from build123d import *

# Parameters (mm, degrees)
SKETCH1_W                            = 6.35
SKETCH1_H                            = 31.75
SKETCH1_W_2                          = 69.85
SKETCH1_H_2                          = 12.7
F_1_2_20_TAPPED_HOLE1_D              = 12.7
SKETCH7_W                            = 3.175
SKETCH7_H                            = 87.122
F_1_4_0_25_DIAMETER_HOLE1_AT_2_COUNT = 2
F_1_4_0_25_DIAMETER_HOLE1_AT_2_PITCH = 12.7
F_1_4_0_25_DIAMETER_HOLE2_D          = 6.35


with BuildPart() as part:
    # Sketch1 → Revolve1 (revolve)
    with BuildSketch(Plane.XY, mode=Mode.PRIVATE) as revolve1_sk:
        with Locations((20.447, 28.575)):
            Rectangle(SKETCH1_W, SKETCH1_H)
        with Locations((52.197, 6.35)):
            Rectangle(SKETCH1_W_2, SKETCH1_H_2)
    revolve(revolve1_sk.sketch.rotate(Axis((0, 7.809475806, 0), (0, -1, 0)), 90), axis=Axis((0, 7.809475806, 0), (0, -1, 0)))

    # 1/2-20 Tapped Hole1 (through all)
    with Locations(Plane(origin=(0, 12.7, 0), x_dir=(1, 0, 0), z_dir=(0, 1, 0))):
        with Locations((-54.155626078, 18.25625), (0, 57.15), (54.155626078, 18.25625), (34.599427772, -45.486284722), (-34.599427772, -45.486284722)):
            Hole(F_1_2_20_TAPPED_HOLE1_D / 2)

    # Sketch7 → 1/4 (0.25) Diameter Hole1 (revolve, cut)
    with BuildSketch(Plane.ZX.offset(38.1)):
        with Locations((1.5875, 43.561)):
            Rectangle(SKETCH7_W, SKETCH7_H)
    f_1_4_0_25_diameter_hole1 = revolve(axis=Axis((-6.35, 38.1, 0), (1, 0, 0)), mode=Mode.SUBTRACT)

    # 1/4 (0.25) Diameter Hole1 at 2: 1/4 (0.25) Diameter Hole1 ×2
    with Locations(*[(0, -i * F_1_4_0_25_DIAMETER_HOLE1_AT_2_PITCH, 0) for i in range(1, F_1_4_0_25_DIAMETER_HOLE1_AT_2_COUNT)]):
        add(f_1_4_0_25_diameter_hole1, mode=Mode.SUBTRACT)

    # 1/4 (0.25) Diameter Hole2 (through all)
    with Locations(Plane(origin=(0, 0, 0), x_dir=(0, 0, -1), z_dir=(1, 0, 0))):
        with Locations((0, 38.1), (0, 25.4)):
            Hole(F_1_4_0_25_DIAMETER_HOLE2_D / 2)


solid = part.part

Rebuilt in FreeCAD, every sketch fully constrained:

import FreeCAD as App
import Part
import Sketcher
Q = App.Units.Quantity

doc = App.newDocument("Part")
params = doc.addObject("Spreadsheet::Sheet", "Params")
for row, (alias, value) in enumerate([
    ("sketch1_width", "2.5 in"),
    ("sketch1_height", "0.5 in"),
    ("sketch1_width2", "2.75 in"),
    ("sketch1_height2", "1.75 in"),
    ("revolution_angle", "360 deg"),
    ("sketch2_diameter", "0.5 in"),
    ("hole_diameter", "0.5 in"),
    ("sketch3_width", "3.43 in"),
    ("sketch3_height", "0.125 in"),
    ("groove_angle", "360 deg"),
    ("linearpattern_pitch", "0.5 in"),
    ("sketch4_diameter", "0.25 in"),
    ("hole2_diameter", "0.25 in"),
], start=1):
    params.set(f"A{row}", alias)
    params.set(f"B{row}", "=" + value)
    params.setAlias(f"B{row}", alias)

body = doc.addObject("PartDesign::Body", "Body")

sketch1 = body.newObject("Sketcher::SketchObject", "Sketch")
sketch1.AttachmentSupport = (doc.getObject("XY_Plane"), [""])
sketch1.MapMode = "FlatFace"
sketch1.addGeometry([
    Part.LineSegment(App.Vector(17, 44, 0), App.Vector(17, 0, 0)),
    Part.LineSegment(App.Vector(17, 0, 0), App.Vector(87, 0, 0)),
    Part.LineSegment(App.Vector(87, 0, 0), App.Vector(87, 13, 0)),
    Part.LineSegment(App.Vector(87, 13, 0), App.Vector(24, 13, 0)),
    Part.LineSegment(App.Vector(24, 13, 0), App.Vector(24, 44, 0)),
    Part.LineSegment(App.Vector(24, 44, 0), App.Vector(17, 44, 0)),
], False)
sketch1.addConstraint([
    Sketcher.Constraint("Coincident", 0, 2, 1, 1),
    Sketcher.Constraint("Coincident", 1, 2, 2, 1),
    Sketcher.Constraint("Coincident", 2, 2, 3, 1),
    Sketcher.Constraint("Coincident", 3, 2, 4, 1),
    Sketcher.Constraint("Coincident", 4, 2, 5, 1),
    Sketcher.Constraint("Coincident", 5, 2, 0, 1),
    Sketcher.Constraint("Vertical", 0),
    Sketcher.Constraint("Horizontal", 1),
    Sketcher.Constraint("Vertical", 2),
    Sketcher.Constraint("Horizontal", 3),
    Sketcher.Constraint("Vertical", 4),
    Sketcher.Constraint("Horizontal", 5),
    Sketcher.Constraint("PointOnObject", 0, 2, -1),
    Sketcher.Constraint("DistanceX", 3, 2, 3, 1, Q("2.5 in")),
    Sketcher.Constraint("DistanceY", 2, 1, 2, 2, Q("0.5 in")),
    Sketcher.Constraint("DistanceX", 1, 1, 1, 2, Q("2.75 in")),
    Sketcher.Constraint("DistanceY", 0, 2, 0, 1, Q("1.75 in")),
    Sketcher.Constraint("DistanceX", -1, 1, 0, 2, Q("0.68 in")),
])
sketch1.setExpression("Constraints[13]", "Params.sketch1_width")
sketch1.setExpression("Constraints[14]", "Params.sketch1_height")
sketch1.setExpression("Constraints[15]", "Params.sketch1_width2")
sketch1.setExpression("Constraints[16]", "Params.sketch1_height2")
revolution = body.newObject("PartDesign::Revolution", "Revolution")
revolution.Profile = sketch1
revolution.ReferenceAxis = (sketch1, ["V_Axis"])
revolution.setExpression("Angle", "Params.revolution_angle")

sketch2 = body.newObject("Sketcher::SketchObject", "Sketch001")
sketch2.AttachmentSupport = (doc.getObject("XZ_Plane"), [""])
sketch2.MapMode = "FlatFace"
sketch2.AttachmentOffset = App.Placement(App.Vector(0, 0, -0.5 * 25.4), App.Rotation())
sketch2.addGeometry([
    Part.Circle(App.Vector(-54, -18, 0), App.Vector(0, 0, 1), 6),
    Part.Circle(App.Vector(0, -57, 0), App.Vector(0, 0, 1), 6),
    Part.Circle(App.Vector(54, -18, 0), App.Vector(0, 0, 1), 6),
    Part.Circle(App.Vector(35, 45, 0), App.Vector(0, 0, 1), 6),
    Part.Circle(App.Vector(-35, 45, 0), App.Vector(0, 0, 1), 6),
], False)
sketch2.addConstraint([
    Sketcher.Constraint("Equal", 0, 1),
    Sketcher.Constraint("Equal", 1, 2),
    Sketcher.Constraint("Equal", 2, 3),
    Sketcher.Constraint("Equal", 3, 4),
    Sketcher.Constraint("Symmetric", 0, 3, 2, 3, -2),
    Sketcher.Constraint("Symmetric", 3, 3, 4, 3, -2),
    Sketcher.Constraint("PointOnObject", 1, 3, -2),
    Sketcher.Constraint("Diameter", 0, Q("0.5 in")),
    Sketcher.Constraint("DistanceY", 1, 3, -1, 1, Q("2.25 in")),
    Sketcher.Constraint("DistanceY", 0, 3, -1, 1, Q("0.71875 in")),
    Sketcher.Constraint("DistanceX", 3, 3, 2, 3, Q("19.556198 mm")),
    Sketcher.Constraint("DistanceX", 0, 3, -1, 1, Q("54.155626 mm")),
    Sketcher.Constraint("DistanceY", -1, 1, 3, 3, Q("45.486285 mm")),
])
sketch2.setExpression("Constraints[7]", "Params.sketch2_diameter")
doc.recompute()
hole = body.newObject("PartDesign::Hole", "Hole")
hole.Profile = sketch2
hole.ThreadType = "None"
hole.setExpression("Diameter", "Params.hole_diameter")
hole.DepthType = "ThroughAll"
hole.Reversed = True

sketch3 = body.newObject("Sketcher::SketchObject", "Sketch002")
sketch3.AttachmentSupport = (doc.getObject("XZ_Plane"), [""])
sketch3.MapMode = "FlatFace"
sketch3.AttachmentOffset = App.Placement(App.Vector(0, 0, -1.5 * 25.4), App.Rotation())
sketch3.addGeometry([
    Part.LineSegment(App.Vector(87.1, 0, 0), App.Vector(0, 0, 0)),
    Part.LineSegment(App.Vector(0, 0, 0), App.Vector(0, 3.2, 0)),
    Part.LineSegment(App.Vector(0, 3.2, 0), App.Vector(87.1, 3.2, 0)),
    Part.LineSegment(App.Vector(87.1, 3.2, 0), App.Vector(87.1, 0, 0)),
], False)
sketch3.addConstraint([
    Sketcher.Constraint("Coincident", 0, 2, 1, 1),
    Sketcher.Constraint("Coincident", 1, 2, 2, 1),
    Sketcher.Constraint("Coincident", 2, 2, 3, 1),
    Sketcher.Constraint("Coincident", 3, 2, 0, 1),
    Sketcher.Constraint("Horizontal", 0),
    Sketcher.Constraint("Vertical", 1),
    Sketcher.Constraint("Horizontal", 2),
    Sketcher.Constraint("Vertical", 3),
    Sketcher.Constraint("Coincident", 0, 2, -1, 1),
    Sketcher.Constraint("DistanceX", 0, 2, 0, 1, Q("3.43 in")),
    Sketcher.Constraint("DistanceY", 1, 1, 1, 2, Q("0.125 in")),
])
sketch3.setExpression("Constraints[9]", "Params.sketch3_width")
sketch3.setExpression("Constraints[10]", "Params.sketch3_height")
groove = body.newObject("PartDesign::Groove", "Groove")
groove.Profile = sketch3
groove.ReferenceAxis = (sketch3, ["H_Axis"])
groove.setExpression("Angle", "Params.groove_angle")
doc.recompute()

linearpattern = body.newObject("PartDesign::LinearPattern", "LinearPattern")
linearpattern.Originals = [groove]
linearpattern.Direction = (doc.getObject("Y_Axis"), [""])
linearpattern.Mode = "offset"
linearpattern.setExpression("Offset", "Params.linearpattern_pitch")
linearpattern.Occurrences = 2
linearpattern.Reversed = True
body.Tip = linearpattern

sketch4 = body.newObject("Sketcher::SketchObject", "Sketch003")
sketch4.AttachmentSupport = (doc.getObject("YZ_Plane"), [""])
sketch4.MapMode = "FlatFace"
sketch4.addGeometry([
    Part.Circle(App.Vector(38.1, 0, 0), App.Vector(0, 0, 1), 3.2),
    Part.Circle(App.Vector(25.4, 0, 0), App.Vector(0, 0, 1), 3.2),
], False)
sketch4.addConstraint([
    Sketcher.Constraint("Equal", 0, 1),
    Sketcher.Constraint("PointOnObject", 0, 3, -1),
    Sketcher.Constraint("PointOnObject", 1, 3, -1),
    Sketcher.Constraint("Diameter", 0, Q("0.25 in")),
    Sketcher.Constraint("DistanceX", -1, 1, 1, 3, Q("1 in")),
    Sketcher.Constraint("DistanceX", -1, 1, 0, 3, Q("1.5 in")),
])
sketch4.setExpression("Constraints[3]", "Params.sketch4_diameter")
doc.recompute()
hole2 = body.newObject("PartDesign::Hole", "Hole001")
hole2.Profile = sketch4
hole2.ThreadType = "None"
hole2.setExpression("Diameter", "Params.hole2_diameter")
hole2.DepthType = "ThroughAll"

doc.recompute()
